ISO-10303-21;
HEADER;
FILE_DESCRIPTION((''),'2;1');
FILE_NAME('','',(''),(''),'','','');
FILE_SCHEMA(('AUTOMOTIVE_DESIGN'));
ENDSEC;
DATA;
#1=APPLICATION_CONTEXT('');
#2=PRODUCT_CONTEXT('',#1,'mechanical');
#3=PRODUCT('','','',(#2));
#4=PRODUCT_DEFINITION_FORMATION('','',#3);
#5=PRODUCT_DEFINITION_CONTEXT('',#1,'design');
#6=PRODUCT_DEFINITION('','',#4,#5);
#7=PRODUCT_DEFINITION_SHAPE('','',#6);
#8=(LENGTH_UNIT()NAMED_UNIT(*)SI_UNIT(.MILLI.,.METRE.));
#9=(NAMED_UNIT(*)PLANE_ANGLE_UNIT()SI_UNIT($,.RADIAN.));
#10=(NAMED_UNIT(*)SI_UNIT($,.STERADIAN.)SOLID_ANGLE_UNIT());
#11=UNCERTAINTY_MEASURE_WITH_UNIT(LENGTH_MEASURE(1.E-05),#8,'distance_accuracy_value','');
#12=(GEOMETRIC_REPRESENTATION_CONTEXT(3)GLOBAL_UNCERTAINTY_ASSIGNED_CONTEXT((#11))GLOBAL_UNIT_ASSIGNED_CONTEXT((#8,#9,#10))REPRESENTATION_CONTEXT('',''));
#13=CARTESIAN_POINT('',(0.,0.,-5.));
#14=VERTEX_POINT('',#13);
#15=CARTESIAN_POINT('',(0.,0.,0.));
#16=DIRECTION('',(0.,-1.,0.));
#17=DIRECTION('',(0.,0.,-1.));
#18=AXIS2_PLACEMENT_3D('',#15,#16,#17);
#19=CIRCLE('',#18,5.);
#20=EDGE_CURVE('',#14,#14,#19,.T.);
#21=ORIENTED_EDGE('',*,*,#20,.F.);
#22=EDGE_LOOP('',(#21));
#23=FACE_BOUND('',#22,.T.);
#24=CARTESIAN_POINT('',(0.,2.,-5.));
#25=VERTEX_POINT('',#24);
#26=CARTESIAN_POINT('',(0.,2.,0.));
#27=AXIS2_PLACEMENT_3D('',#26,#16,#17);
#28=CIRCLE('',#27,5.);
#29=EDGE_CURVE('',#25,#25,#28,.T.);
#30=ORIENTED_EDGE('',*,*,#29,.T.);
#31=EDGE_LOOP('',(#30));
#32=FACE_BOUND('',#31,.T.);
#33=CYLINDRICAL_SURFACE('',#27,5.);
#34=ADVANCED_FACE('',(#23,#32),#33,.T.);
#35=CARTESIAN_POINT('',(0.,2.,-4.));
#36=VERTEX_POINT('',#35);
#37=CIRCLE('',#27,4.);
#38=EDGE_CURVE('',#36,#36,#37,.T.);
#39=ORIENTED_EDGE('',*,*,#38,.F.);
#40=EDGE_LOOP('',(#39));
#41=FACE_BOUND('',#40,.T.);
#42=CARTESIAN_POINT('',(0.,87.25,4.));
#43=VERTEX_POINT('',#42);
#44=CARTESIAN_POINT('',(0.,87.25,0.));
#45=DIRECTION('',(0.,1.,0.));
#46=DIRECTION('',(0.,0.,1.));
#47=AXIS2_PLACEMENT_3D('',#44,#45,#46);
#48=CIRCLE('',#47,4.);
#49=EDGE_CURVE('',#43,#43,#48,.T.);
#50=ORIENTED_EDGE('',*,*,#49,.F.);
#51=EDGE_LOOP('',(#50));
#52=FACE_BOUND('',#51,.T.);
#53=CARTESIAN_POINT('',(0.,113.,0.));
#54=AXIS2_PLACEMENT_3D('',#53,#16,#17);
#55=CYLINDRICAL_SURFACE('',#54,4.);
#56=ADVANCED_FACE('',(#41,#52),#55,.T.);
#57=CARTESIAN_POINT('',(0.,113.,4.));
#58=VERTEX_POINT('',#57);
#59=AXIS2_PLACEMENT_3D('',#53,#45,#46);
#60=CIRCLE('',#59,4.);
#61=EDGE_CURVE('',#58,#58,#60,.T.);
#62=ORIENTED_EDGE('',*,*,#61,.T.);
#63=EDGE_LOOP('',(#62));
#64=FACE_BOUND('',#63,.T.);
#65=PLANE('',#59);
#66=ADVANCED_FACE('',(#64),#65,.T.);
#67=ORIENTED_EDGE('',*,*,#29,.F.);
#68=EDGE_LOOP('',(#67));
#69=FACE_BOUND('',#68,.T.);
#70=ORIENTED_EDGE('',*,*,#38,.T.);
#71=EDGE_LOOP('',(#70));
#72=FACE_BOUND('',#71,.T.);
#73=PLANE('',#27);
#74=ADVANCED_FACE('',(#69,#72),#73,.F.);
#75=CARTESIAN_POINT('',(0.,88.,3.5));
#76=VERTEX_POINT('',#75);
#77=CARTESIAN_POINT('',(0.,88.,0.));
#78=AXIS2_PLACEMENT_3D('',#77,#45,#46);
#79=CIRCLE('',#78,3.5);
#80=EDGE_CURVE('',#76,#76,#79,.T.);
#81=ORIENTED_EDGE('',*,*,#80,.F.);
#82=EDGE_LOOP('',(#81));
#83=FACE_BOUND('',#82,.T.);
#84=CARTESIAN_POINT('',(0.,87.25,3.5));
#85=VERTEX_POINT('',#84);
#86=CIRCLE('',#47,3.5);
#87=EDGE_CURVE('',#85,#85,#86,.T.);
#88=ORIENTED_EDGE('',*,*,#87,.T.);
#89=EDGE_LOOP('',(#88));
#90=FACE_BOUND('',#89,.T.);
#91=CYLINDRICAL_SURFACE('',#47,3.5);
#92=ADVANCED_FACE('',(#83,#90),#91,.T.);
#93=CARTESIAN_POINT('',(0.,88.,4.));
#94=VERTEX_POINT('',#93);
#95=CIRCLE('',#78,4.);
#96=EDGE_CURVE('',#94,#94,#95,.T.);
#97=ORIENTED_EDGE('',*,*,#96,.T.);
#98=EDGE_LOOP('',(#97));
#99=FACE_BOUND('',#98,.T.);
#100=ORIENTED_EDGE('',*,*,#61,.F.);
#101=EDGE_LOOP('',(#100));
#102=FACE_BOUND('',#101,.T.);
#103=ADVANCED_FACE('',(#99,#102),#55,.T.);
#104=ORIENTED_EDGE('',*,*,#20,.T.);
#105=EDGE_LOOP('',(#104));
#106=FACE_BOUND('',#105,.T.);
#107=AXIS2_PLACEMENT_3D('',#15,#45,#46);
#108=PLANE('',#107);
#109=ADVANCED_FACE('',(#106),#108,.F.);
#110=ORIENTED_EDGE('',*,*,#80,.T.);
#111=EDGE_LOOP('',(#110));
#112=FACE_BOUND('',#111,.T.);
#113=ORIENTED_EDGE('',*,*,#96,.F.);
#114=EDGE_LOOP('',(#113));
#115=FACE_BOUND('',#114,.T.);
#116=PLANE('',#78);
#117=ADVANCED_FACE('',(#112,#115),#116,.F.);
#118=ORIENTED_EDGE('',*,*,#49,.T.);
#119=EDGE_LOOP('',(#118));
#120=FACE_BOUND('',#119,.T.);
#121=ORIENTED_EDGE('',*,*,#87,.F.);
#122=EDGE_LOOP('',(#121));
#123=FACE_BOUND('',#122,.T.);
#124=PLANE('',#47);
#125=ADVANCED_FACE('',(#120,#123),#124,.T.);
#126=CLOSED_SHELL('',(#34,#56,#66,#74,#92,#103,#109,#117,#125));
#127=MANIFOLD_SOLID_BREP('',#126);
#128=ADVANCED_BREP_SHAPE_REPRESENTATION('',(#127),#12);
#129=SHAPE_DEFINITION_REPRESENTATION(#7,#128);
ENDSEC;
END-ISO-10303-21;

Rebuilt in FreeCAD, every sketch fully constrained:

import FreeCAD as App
import Part
import Sketcher
Q = App.Units.Quantity

doc = App.newDocument("Part")
body = doc.addObject("PartDesign::Body", "Body")

# Sketch on XZ plane
sketch1 = body.newObject("Sketcher::SketchObject", "Sketch")
sketch1.AttachmentSupport = (doc.getObject("XZ_Plane"), [""])
sketch1.MapMode = "FlatFace"
sketch1.addGeometry(Part.Circle(App.Vector(0, 0, 0), App.Vector(0, 0, 1), 4), False)
sketch1.addConstraint([
    Sketcher.Constraint("Coincident", 0, 3, -1, 1),
    Sketcher.Constraint("Diameter", 0, Q("8 mm")),
])
pad1 = body.newObject("PartDesign::Pad", "Pad")
pad1.Profile = sketch1
pad1.Length = 113
pad1.Reversed = True

# Sketch on XZ plane
sketch2 = body.newObject("Sketcher::SketchObject", "Sketch001")
sketch2.AttachmentSupport = (doc.getObject("XZ_Plane"), [""])
sketch2.MapMode = "FlatFace"
sketch2.AttachmentOffset = App.Placement(App.Vector(0, 0, -87.25), App.Rotation())
sketch2.addGeometry([
    Part.Circle(App.Vector(0, 0, 0), App.Vector(0, 0, 1), 4),
    Part.Circle(App.Vector(0, 0, 0), App.Vector(0, 0, 1), 3.5),
], False)
sketch2.addConstraint([
    Sketcher.Constraint("Coincident", 0, 3, -1, 1),
    Sketcher.Constraint("Coincident", 1, 3, -1, 1),
    Sketcher.Constraint("Diameter", 0, Q("8 mm")),
    Sketcher.Constraint("Diameter", 1, Q("7 mm")),
])
pocket1 = body.newObject("PartDesign::Pocket", "Pocket")
pocket1.Profile = sketch2
pocket1.Length = 0.75

# Sketch on XZ plane
sketch3 = body.newObject("Sketcher::SketchObject", "Sketch002")
sketch3.AttachmentSupport = (doc.getObject("XZ_Plane"), [""])
sketch3.MapMode = "FlatFace"
sketch3.addGeometry(Part.Circle(App.Vector(0, 0, 0), App.Vector(0, 0, 1), 5), False)
sketch3.addConstraint([
    Sketcher.Constraint("Coincident", 0, 3, -1, 1),
    Sketcher.Constraint("Diameter", 0, Q("10 mm")),
])
pad2 = body.newObject("PartDesign::Pad", "Pad001")
pad2.Profile = sketch3
pad2.Length = 2
pad2.Reversed = True

doc.recompute()
